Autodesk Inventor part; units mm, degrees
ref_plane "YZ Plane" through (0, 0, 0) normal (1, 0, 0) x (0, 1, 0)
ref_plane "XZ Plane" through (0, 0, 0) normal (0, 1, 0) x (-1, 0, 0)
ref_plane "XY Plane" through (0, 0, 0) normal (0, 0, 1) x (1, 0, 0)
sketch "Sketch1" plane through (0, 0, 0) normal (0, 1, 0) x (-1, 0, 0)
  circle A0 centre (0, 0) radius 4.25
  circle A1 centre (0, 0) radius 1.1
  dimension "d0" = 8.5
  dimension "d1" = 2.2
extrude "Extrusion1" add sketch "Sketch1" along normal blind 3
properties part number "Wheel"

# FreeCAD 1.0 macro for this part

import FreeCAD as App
import Part
import Sketcher
from FreeCAD import Vector
Q = App.Units.Quantity

doc = App.newDocument("Part")
body = doc.addObject("PartDesign::Body", "Body")

sketch1 = body.newObject("Sketcher::SketchObject", "Sketch")
sketch1.AttachmentSupport = (doc.getObject("XZ_Plane"), [""])
sketch1.MapMode = "FlatFace"
sketch1.addGeometry([
    Part.Circle(Vector(0, 0, 0), Vector(0, 0, 1), 4.25),
    Part.Circle(Vector(0, 0, 0), Vector(0, 0, 1), 1.1),
], False)
sketch1.addConstraint([
    Sketcher.Constraint("Coincident", 0, 3, -1, 1),
    Sketcher.Constraint("Coincident", 1, 3, -1, 1),
    Sketcher.Constraint("Diameter", 0, Q("8.5 mm")),
    Sketcher.Constraint("Diameter", 1, Q("2.2 mm")),
])
pad1 = body.newObject("PartDesign::Pad", "Pad")
pad1.Profile = sketch1
pad1.Length = 3
pad1.Reversed = True

doc.recompute()
